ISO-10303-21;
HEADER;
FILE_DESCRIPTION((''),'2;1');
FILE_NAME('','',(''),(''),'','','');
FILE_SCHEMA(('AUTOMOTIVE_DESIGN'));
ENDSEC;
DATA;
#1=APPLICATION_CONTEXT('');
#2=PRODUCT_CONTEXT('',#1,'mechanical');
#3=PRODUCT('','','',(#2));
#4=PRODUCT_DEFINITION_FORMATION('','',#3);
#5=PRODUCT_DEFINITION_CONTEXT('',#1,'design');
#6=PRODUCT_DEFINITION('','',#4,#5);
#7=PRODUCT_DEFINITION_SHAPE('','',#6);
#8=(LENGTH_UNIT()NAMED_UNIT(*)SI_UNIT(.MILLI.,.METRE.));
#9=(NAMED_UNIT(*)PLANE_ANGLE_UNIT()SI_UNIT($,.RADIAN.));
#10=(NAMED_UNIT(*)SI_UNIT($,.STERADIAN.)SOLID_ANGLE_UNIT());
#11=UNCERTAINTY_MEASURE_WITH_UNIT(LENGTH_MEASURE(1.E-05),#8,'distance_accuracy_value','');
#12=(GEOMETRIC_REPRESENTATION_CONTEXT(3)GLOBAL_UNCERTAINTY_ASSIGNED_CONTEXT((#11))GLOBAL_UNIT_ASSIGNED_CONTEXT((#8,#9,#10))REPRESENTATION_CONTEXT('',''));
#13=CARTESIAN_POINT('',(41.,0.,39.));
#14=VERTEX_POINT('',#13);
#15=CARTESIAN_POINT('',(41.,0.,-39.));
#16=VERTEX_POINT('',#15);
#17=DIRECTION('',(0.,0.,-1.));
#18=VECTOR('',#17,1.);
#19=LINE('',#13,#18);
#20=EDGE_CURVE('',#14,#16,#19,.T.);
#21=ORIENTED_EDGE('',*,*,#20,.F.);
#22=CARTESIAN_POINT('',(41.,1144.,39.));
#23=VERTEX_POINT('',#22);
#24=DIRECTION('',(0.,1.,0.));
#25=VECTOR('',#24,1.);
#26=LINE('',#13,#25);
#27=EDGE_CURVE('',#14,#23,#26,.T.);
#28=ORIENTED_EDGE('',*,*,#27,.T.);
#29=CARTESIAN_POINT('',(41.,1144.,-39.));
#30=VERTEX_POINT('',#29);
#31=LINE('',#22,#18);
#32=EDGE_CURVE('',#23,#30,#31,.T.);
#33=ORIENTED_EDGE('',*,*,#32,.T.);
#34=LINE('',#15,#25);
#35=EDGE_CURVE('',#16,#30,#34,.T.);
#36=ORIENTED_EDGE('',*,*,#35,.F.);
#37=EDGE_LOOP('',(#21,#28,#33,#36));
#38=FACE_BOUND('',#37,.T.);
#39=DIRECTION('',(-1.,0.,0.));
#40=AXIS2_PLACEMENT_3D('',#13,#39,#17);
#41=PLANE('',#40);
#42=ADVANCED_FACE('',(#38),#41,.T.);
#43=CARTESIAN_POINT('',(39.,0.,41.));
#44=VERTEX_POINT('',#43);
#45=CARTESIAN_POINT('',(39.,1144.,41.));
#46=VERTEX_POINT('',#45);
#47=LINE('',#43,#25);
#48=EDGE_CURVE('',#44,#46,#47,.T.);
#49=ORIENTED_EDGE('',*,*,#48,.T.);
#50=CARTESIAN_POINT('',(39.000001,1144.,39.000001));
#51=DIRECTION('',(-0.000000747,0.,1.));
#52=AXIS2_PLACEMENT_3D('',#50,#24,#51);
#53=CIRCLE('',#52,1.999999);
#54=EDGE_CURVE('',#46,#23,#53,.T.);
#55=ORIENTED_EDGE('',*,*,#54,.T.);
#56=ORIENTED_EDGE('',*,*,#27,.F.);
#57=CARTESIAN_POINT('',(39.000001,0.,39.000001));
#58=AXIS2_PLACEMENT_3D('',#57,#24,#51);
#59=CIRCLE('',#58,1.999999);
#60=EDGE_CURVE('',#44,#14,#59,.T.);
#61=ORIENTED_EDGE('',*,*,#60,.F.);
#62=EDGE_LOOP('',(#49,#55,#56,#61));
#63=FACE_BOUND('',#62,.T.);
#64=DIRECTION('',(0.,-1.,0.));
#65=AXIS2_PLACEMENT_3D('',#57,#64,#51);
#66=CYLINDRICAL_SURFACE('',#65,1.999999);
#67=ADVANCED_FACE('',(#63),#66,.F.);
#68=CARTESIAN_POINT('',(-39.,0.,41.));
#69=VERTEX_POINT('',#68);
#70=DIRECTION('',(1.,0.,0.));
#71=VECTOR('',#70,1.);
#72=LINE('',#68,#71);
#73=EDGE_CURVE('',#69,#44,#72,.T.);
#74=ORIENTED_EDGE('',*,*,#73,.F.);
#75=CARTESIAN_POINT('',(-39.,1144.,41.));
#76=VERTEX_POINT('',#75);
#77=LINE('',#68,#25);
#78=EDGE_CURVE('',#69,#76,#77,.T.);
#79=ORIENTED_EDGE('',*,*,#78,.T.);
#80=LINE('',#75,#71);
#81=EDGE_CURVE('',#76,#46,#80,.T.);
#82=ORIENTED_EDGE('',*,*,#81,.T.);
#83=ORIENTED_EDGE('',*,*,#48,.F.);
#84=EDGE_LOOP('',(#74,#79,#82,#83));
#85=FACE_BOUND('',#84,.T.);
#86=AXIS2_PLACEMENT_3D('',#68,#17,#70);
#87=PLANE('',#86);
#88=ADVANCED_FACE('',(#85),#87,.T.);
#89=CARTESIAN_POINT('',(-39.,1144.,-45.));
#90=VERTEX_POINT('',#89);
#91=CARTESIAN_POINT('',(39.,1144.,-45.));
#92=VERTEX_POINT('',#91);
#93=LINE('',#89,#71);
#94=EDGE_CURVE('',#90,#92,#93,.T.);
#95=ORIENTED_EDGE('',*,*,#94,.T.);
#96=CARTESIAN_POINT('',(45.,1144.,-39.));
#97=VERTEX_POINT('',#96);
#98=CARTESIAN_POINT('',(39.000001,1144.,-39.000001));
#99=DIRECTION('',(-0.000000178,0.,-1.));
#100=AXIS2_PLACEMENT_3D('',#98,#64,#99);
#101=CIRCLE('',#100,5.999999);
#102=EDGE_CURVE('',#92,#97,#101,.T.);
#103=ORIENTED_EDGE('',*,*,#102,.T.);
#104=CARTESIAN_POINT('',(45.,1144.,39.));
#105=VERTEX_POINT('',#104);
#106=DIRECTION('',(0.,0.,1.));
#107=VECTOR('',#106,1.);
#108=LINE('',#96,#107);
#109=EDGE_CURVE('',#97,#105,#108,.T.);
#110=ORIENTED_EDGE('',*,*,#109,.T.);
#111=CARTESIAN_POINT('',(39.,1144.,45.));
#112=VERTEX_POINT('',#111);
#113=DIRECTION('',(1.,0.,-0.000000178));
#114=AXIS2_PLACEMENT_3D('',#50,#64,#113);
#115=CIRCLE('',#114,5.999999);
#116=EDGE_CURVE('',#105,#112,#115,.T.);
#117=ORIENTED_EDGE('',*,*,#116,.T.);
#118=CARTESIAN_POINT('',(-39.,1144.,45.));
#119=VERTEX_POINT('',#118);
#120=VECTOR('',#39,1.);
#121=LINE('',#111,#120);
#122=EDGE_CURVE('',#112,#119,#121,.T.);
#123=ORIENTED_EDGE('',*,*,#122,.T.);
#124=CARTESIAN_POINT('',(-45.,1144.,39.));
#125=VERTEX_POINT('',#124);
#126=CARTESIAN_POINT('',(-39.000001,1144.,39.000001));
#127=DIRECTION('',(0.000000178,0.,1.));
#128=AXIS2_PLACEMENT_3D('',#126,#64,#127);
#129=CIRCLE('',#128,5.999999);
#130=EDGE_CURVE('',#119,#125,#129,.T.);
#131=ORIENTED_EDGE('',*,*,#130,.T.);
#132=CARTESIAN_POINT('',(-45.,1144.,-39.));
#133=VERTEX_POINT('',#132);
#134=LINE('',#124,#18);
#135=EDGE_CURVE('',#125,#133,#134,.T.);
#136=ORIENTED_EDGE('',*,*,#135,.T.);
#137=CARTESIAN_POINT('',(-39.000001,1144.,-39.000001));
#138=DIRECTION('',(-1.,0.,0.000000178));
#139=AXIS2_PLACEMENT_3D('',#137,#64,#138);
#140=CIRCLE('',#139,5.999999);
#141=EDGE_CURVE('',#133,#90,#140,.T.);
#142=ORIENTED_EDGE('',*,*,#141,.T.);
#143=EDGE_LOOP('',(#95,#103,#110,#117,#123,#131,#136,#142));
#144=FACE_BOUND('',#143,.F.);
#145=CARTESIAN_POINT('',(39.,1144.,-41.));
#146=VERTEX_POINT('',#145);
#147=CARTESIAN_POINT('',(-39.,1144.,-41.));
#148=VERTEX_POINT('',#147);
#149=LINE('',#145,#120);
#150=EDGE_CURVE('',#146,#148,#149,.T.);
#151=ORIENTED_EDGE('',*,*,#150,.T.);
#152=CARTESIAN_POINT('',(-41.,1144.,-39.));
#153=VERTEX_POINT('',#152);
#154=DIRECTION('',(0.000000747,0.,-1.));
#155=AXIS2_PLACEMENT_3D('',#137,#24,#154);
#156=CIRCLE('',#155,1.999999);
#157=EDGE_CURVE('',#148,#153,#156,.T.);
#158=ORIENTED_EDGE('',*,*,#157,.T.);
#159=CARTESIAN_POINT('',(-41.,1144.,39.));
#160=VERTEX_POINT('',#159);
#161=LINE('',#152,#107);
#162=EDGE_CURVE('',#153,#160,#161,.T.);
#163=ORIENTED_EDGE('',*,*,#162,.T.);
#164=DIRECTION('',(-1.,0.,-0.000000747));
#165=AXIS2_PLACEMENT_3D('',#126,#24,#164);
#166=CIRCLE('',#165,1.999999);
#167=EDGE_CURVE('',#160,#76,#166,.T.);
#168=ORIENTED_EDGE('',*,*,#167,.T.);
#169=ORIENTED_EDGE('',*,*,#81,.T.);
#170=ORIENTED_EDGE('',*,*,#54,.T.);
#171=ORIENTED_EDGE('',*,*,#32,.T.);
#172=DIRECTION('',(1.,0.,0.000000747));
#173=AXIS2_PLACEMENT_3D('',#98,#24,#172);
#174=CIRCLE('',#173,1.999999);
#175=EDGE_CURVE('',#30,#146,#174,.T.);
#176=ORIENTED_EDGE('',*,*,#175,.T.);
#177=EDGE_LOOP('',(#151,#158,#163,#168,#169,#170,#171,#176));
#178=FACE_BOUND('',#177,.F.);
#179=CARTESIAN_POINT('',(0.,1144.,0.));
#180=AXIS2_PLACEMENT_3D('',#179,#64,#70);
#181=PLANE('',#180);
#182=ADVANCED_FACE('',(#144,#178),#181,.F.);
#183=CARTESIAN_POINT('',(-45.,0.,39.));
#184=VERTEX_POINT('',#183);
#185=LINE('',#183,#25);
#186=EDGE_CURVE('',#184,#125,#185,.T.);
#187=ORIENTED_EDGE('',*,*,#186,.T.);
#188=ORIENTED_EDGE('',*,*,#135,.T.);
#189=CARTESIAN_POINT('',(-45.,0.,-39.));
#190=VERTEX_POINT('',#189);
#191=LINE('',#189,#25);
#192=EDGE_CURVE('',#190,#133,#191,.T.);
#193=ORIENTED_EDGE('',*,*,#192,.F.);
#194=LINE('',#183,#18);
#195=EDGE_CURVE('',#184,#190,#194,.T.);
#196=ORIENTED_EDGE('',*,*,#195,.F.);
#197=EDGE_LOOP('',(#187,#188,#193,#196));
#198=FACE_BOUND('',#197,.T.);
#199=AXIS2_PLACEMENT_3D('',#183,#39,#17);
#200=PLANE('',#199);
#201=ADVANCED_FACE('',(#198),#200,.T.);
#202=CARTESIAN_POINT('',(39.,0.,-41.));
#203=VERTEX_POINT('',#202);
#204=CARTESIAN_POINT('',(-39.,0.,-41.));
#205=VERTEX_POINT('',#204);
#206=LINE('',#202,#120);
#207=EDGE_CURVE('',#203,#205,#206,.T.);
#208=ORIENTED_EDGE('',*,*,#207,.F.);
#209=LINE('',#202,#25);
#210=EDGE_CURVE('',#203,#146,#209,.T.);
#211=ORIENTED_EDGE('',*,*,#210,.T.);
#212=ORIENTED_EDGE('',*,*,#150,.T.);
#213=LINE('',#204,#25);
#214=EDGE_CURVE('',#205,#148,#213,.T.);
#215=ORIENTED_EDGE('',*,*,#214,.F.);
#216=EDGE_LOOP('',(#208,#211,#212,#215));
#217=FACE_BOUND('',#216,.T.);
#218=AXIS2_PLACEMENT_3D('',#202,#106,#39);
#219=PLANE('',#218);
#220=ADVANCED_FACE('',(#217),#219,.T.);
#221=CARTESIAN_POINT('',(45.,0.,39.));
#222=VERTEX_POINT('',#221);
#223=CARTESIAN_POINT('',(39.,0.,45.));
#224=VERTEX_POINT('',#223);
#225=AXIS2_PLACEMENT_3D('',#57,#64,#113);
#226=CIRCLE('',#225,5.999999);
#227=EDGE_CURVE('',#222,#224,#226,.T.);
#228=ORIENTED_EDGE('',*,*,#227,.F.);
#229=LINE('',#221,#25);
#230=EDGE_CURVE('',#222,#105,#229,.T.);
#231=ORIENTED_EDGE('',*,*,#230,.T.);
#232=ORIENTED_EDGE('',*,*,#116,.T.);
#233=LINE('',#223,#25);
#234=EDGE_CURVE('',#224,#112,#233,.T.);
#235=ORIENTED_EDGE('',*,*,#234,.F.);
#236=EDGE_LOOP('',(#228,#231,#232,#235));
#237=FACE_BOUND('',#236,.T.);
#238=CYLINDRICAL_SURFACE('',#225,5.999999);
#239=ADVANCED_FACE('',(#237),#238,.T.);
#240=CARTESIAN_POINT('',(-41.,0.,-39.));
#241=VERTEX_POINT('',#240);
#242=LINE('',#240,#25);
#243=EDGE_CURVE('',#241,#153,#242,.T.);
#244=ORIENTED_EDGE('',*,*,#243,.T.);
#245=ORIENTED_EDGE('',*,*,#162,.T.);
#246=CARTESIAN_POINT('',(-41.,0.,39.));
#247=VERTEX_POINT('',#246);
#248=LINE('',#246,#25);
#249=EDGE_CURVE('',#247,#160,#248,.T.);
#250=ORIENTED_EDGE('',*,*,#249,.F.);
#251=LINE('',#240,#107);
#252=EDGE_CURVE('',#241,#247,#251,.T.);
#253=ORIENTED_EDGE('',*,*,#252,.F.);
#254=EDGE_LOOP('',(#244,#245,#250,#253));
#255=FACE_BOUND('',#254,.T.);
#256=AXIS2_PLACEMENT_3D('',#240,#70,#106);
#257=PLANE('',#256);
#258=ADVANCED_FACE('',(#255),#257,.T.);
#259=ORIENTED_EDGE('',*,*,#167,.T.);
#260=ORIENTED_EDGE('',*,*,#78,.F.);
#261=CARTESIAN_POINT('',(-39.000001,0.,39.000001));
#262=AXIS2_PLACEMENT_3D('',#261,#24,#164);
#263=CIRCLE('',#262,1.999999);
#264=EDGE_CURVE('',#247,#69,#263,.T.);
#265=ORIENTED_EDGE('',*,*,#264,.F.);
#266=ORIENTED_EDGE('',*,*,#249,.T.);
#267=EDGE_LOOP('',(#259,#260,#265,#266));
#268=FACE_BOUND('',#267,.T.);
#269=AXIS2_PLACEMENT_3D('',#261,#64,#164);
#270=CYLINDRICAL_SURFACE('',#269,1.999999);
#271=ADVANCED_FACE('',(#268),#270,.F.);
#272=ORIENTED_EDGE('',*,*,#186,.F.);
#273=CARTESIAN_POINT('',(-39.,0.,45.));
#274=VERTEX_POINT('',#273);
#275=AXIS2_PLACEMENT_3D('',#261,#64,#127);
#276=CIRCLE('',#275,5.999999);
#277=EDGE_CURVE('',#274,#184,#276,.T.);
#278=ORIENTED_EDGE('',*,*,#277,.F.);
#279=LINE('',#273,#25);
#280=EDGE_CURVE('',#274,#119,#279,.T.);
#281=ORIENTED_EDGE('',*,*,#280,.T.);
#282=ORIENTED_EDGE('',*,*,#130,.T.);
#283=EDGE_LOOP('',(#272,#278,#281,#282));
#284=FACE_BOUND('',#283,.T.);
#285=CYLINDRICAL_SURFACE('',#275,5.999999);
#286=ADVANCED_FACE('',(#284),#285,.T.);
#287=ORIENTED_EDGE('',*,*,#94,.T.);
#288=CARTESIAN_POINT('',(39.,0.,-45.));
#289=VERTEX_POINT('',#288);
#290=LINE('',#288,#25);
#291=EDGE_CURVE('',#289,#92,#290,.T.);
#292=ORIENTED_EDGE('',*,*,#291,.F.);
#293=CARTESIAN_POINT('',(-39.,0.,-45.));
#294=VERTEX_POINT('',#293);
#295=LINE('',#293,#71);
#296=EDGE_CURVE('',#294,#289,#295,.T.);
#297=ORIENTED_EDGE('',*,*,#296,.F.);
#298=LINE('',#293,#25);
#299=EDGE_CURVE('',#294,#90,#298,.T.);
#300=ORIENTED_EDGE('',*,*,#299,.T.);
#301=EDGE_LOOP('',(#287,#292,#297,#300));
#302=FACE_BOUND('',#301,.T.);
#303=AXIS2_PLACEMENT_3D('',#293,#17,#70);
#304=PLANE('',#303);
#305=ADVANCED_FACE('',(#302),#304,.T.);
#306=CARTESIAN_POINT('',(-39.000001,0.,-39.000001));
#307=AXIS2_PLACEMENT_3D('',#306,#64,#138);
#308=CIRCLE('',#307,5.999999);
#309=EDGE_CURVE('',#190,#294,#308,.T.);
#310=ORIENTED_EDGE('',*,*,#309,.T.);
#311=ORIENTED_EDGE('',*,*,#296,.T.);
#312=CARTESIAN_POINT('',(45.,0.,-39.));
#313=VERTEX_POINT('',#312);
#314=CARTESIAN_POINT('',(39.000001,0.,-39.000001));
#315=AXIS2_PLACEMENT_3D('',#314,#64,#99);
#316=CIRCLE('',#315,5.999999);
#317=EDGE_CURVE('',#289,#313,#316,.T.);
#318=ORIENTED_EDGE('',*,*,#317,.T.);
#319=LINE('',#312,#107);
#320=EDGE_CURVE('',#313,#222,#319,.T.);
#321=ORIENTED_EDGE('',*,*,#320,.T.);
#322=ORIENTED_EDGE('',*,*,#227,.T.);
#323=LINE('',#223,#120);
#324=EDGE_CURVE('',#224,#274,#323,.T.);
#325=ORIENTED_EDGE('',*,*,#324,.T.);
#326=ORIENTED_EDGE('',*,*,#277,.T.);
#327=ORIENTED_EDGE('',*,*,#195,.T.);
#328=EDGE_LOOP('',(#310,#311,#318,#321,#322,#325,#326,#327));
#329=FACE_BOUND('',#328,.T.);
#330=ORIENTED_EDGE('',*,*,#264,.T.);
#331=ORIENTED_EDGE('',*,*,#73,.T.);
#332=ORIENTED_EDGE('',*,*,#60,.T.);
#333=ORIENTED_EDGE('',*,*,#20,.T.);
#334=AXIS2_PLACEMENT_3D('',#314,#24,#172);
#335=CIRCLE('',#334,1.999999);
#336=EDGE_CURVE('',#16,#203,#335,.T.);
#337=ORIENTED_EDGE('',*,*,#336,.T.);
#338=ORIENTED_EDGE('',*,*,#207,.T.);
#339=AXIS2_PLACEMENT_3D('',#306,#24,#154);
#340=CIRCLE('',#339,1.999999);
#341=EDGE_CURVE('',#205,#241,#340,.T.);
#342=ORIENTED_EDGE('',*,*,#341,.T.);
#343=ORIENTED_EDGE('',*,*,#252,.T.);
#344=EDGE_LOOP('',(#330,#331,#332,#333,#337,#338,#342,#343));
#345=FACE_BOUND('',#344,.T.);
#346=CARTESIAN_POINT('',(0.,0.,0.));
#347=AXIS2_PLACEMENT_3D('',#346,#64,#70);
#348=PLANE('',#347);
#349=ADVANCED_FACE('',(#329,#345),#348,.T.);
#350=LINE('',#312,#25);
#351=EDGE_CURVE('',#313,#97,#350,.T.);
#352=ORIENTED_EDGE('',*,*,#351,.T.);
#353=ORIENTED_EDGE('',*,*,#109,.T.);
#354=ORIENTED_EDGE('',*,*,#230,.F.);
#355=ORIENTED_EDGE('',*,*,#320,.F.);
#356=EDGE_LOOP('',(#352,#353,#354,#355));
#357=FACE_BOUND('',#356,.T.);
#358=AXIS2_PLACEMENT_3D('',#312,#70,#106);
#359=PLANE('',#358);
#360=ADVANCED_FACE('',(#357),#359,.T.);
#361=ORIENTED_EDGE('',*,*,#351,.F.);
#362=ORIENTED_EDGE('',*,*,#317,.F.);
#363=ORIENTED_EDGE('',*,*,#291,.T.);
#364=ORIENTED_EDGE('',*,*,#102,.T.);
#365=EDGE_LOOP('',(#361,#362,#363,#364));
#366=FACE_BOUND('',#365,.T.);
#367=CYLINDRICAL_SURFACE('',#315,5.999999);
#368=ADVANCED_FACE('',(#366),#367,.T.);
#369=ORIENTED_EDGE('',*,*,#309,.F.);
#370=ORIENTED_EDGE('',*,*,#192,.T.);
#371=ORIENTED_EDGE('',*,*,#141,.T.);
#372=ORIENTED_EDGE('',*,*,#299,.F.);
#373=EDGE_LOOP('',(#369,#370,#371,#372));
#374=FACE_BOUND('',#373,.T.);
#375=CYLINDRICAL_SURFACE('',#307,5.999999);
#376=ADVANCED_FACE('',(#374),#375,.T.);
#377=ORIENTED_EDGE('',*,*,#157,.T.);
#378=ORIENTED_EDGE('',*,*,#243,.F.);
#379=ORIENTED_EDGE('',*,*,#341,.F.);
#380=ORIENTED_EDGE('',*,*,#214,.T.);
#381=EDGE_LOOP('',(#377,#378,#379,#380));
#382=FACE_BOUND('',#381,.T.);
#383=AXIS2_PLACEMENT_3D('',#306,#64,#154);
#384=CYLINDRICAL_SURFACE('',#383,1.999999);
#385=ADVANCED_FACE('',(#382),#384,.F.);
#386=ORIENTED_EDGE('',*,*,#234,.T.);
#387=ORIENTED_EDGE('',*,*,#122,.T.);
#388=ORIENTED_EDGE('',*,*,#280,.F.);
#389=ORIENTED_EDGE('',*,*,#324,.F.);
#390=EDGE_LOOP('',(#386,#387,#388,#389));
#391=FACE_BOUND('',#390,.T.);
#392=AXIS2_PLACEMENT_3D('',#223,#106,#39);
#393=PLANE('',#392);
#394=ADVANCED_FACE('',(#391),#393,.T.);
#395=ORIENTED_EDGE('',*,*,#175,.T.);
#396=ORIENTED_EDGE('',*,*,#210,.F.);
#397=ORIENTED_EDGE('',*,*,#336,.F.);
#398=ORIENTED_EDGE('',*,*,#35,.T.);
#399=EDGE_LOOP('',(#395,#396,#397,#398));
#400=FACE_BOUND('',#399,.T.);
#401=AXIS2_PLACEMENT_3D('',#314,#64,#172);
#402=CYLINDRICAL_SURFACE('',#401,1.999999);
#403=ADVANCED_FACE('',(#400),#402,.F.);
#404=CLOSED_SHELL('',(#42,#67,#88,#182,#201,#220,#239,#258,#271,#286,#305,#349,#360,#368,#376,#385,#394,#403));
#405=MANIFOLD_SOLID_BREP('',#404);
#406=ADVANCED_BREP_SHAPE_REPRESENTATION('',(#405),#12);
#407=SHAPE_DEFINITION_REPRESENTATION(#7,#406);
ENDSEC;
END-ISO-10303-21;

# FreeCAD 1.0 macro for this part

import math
import FreeCAD as App
import Part
import Sketcher
Q = App.Units.Quantity

doc = App.newDocument("Part")
body = doc.addObject("PartDesign::Body", "Body")

sketch1 = body.newObject("Sketcher::SketchObject", "Sketch")
sketch1.AttachmentSupport = (doc.getObject("XZ_Plane"), [""])
sketch1.MapMode = "FlatFace"
sketch1.addGeometry(Part.ArcOfCircle(Part.Circle(App.Vector(39.000001, 39.000001, 0), App.Vector(0, 0, 1), 5.999999), math.radians(-0.00001), math.radians(90.00001)), False)
sketch1.addGeometry(Part.LineSegment(App.Vector(39, 45, 0), App.Vector(-39, 45, 0)), False)
sketch1.addGeometry(Part.ArcOfCircle(Part.Circle(App.Vector(-39.000001, 39.000001, 0), App.Vector(0, 0, 1), 5.999999), math.radians(89.99999), math.radians(180.00001)), False)
sketch1.addGeometry(Part.LineSegment(App.Vector(-45, 39, 0), App.Vector(-45, -39, 0)), False)
sketch1.addGeometry(Part.ArcOfCircle(Part.Circle(App.Vector(-39.000001, -39.000001, 0), App.Vector(0, 0, 1), 5.999999), math.radians(179.99999), math.radians(270.00001)), False)
sketch1.addGeometry(Part.LineSegment(App.Vector(-39, -45, 0), App.Vector(39, -45, 0)), False)
sketch1.addGeometry(Part.ArcOfCircle(Part.Circle(App.Vector(39.000001, -39.000001, 0), App.Vector(0, 0, 1), 5.999999), math.radians(-90.00001), math.radians(0.00001)), False)
sketch1.addGeometry(Part.LineSegment(App.Vector(45, -39, 0), App.Vector(45, 39, 0)), False)
sketch1.addGeometry(Part.LineSegment(App.Vector(-41, -39, 0), App.Vector(-41, 39, 0)), False)
sketch1.addGeometry(Part.ArcOfCircle(Part.Circle(App.Vector(-39.000001, 39.000001, 0), App.Vector(0, 0, 1), 1.999999), math.radians(89.999957), math.radians(180.000043)), False)
sketch1.addGeometry(Part.LineSegment(App.Vector(-39, 41, 0), App.Vector(39, 41, 0)), False)
sketch1.addGeometry(Part.ArcOfCircle(Part.Circle(App.Vector(39.000001, 39.000001, 0), App.Vector(0, 0, 1), 1.999999), math.radians(-0.000043), math.radians(90.000043)), False)
sketch1.addGeometry(Part.LineSegment(App.Vector(41, 39, 0), App.Vector(41, -39, 0)), False)
sketch1.addGeometry(Part.ArcOfCircle(Part.Circle(App.Vector(39.000001, -39.000001, 0), App.Vector(0, 0, 1), 1.999999), math.radians(-90.000043), math.radians(0.000043)), False)
sketch1.addGeometry(Part.LineSegment(App.Vector(39, -41, 0), App.Vector(-39, -41, 0)), False)
sketch1.addGeometry(Part.ArcOfCircle(Part.Circle(App.Vector(-39.000001, -39.000001, 0), App.Vector(0, 0, 1), 1.999999), math.radians(179.999957), math.radians(270.000043)), False)
sketch1.addConstraint(Sketcher.Constraint("Tangent", 0, 2, 1, 1))
sketch1.addConstraint(Sketcher.Constraint("Tangent", 1, 2, 2, 1))
sketch1.addConstraint(Sketcher.Constraint("Tangent", 2, 2, 3, 1))
sketch1.addConstraint(Sketcher.Constraint("Tangent", 3, 2, 4, 1))
sketch1.addConstraint(Sketcher.Constraint("Tangent", 4, 2, 5, 1))
sketch1.addConstraint(Sketcher.Constraint("Tangent", 5, 2, 6, 1))
sketch1.addConstraint(Sketcher.Constraint("Tangent", 6, 2, 7, 1))
sketch1.addConstraint(Sketcher.Constraint("Tangent", 7, 2, 0, 1))
sketch1.addConstraint(Sketcher.Constraint("Tangent", 8, 2, 9, 2))
sketch1.addConstraint(Sketcher.Constraint("Tangent", 9, 1, 10, 1))
sketch1.addConstraint(Sketcher.Constraint("Tangent", 10, 2, 11, 2))
sketch1.addConstraint(Sketcher.Constraint("Tangent", 11, 1, 12, 1))
sketch1.addConstraint(Sketcher.Constraint("Tangent", 12, 2, 13, 2))
sketch1.addConstraint(Sketcher.Constraint("Tangent", 13, 1, 14, 1))
sketch1.addConstraint(Sketcher.Constraint("Tangent", 14, 2, 15, 2))
sketch1.addConstraint(Sketcher.Constraint("Tangent", 15, 1, 8, 1))
sketch1.addConstraint(Sketcher.Constraint("Horizontal", 1))
sketch1.addConstraint(Sketcher.Constraint("Vertical", 3))
sketch1.addConstraint(Sketcher.Constraint("Horizontal", 5))
sketch1.addConstraint(Sketcher.Constraint("Vertical", 7))
sketch1.addConstraint(Sketcher.Constraint("Vertical", 8))
sketch1.addConstraint(Sketcher.Constraint("Horizontal", 10))
sketch1.addConstraint(Sketcher.Constraint("Vertical", 12))
sketch1.addConstraint(Sketcher.Constraint("Horizontal", 14))
sketch1.addConstraint(Sketcher.Constraint("Coincident", 9, 3, 2, 3))
sketch1.addConstraint(Sketcher.Constraint("Coincident", 11, 3, 0, 3))
sketch1.addConstraint(Sketcher.Constraint("Coincident", 13, 3, 6, 3))
sketch1.addConstraint(Sketcher.Constraint("Equal", 0, 2))
sketch1.addConstraint(Sketcher.Constraint("Equal", 2, 4))
sketch1.addConstraint(Sketcher.Constraint("Equal", 4, 6))
sketch1.addConstraint(Sketcher.Constraint("Equal", 13, 15))
sketch1.addConstraint(Sketcher.Constraint("Symmetric", 0, 3, 4, 3, -1, 1))
sketch1.addConstraint(Sketcher.Constraint("Equal", 14, 3))
sketch1.addConstraint(Sketcher.Constraint("Radius", 0, Q("5.999999 mm")))
sketch1.addConstraint(Sketcher.Constraint("Radius", 9, Q("1.999999 mm")))
sketch1.addConstraint(Sketcher.Constraint("DistanceX", 1, 2, 1, 1, Q("78 mm")))
pad1 = body.newObject("PartDesign::Pad", "Pad")
pad1.Profile = sketch1
pad1.Length = 1144
pad1.Reversed = True

doc.recompute()
